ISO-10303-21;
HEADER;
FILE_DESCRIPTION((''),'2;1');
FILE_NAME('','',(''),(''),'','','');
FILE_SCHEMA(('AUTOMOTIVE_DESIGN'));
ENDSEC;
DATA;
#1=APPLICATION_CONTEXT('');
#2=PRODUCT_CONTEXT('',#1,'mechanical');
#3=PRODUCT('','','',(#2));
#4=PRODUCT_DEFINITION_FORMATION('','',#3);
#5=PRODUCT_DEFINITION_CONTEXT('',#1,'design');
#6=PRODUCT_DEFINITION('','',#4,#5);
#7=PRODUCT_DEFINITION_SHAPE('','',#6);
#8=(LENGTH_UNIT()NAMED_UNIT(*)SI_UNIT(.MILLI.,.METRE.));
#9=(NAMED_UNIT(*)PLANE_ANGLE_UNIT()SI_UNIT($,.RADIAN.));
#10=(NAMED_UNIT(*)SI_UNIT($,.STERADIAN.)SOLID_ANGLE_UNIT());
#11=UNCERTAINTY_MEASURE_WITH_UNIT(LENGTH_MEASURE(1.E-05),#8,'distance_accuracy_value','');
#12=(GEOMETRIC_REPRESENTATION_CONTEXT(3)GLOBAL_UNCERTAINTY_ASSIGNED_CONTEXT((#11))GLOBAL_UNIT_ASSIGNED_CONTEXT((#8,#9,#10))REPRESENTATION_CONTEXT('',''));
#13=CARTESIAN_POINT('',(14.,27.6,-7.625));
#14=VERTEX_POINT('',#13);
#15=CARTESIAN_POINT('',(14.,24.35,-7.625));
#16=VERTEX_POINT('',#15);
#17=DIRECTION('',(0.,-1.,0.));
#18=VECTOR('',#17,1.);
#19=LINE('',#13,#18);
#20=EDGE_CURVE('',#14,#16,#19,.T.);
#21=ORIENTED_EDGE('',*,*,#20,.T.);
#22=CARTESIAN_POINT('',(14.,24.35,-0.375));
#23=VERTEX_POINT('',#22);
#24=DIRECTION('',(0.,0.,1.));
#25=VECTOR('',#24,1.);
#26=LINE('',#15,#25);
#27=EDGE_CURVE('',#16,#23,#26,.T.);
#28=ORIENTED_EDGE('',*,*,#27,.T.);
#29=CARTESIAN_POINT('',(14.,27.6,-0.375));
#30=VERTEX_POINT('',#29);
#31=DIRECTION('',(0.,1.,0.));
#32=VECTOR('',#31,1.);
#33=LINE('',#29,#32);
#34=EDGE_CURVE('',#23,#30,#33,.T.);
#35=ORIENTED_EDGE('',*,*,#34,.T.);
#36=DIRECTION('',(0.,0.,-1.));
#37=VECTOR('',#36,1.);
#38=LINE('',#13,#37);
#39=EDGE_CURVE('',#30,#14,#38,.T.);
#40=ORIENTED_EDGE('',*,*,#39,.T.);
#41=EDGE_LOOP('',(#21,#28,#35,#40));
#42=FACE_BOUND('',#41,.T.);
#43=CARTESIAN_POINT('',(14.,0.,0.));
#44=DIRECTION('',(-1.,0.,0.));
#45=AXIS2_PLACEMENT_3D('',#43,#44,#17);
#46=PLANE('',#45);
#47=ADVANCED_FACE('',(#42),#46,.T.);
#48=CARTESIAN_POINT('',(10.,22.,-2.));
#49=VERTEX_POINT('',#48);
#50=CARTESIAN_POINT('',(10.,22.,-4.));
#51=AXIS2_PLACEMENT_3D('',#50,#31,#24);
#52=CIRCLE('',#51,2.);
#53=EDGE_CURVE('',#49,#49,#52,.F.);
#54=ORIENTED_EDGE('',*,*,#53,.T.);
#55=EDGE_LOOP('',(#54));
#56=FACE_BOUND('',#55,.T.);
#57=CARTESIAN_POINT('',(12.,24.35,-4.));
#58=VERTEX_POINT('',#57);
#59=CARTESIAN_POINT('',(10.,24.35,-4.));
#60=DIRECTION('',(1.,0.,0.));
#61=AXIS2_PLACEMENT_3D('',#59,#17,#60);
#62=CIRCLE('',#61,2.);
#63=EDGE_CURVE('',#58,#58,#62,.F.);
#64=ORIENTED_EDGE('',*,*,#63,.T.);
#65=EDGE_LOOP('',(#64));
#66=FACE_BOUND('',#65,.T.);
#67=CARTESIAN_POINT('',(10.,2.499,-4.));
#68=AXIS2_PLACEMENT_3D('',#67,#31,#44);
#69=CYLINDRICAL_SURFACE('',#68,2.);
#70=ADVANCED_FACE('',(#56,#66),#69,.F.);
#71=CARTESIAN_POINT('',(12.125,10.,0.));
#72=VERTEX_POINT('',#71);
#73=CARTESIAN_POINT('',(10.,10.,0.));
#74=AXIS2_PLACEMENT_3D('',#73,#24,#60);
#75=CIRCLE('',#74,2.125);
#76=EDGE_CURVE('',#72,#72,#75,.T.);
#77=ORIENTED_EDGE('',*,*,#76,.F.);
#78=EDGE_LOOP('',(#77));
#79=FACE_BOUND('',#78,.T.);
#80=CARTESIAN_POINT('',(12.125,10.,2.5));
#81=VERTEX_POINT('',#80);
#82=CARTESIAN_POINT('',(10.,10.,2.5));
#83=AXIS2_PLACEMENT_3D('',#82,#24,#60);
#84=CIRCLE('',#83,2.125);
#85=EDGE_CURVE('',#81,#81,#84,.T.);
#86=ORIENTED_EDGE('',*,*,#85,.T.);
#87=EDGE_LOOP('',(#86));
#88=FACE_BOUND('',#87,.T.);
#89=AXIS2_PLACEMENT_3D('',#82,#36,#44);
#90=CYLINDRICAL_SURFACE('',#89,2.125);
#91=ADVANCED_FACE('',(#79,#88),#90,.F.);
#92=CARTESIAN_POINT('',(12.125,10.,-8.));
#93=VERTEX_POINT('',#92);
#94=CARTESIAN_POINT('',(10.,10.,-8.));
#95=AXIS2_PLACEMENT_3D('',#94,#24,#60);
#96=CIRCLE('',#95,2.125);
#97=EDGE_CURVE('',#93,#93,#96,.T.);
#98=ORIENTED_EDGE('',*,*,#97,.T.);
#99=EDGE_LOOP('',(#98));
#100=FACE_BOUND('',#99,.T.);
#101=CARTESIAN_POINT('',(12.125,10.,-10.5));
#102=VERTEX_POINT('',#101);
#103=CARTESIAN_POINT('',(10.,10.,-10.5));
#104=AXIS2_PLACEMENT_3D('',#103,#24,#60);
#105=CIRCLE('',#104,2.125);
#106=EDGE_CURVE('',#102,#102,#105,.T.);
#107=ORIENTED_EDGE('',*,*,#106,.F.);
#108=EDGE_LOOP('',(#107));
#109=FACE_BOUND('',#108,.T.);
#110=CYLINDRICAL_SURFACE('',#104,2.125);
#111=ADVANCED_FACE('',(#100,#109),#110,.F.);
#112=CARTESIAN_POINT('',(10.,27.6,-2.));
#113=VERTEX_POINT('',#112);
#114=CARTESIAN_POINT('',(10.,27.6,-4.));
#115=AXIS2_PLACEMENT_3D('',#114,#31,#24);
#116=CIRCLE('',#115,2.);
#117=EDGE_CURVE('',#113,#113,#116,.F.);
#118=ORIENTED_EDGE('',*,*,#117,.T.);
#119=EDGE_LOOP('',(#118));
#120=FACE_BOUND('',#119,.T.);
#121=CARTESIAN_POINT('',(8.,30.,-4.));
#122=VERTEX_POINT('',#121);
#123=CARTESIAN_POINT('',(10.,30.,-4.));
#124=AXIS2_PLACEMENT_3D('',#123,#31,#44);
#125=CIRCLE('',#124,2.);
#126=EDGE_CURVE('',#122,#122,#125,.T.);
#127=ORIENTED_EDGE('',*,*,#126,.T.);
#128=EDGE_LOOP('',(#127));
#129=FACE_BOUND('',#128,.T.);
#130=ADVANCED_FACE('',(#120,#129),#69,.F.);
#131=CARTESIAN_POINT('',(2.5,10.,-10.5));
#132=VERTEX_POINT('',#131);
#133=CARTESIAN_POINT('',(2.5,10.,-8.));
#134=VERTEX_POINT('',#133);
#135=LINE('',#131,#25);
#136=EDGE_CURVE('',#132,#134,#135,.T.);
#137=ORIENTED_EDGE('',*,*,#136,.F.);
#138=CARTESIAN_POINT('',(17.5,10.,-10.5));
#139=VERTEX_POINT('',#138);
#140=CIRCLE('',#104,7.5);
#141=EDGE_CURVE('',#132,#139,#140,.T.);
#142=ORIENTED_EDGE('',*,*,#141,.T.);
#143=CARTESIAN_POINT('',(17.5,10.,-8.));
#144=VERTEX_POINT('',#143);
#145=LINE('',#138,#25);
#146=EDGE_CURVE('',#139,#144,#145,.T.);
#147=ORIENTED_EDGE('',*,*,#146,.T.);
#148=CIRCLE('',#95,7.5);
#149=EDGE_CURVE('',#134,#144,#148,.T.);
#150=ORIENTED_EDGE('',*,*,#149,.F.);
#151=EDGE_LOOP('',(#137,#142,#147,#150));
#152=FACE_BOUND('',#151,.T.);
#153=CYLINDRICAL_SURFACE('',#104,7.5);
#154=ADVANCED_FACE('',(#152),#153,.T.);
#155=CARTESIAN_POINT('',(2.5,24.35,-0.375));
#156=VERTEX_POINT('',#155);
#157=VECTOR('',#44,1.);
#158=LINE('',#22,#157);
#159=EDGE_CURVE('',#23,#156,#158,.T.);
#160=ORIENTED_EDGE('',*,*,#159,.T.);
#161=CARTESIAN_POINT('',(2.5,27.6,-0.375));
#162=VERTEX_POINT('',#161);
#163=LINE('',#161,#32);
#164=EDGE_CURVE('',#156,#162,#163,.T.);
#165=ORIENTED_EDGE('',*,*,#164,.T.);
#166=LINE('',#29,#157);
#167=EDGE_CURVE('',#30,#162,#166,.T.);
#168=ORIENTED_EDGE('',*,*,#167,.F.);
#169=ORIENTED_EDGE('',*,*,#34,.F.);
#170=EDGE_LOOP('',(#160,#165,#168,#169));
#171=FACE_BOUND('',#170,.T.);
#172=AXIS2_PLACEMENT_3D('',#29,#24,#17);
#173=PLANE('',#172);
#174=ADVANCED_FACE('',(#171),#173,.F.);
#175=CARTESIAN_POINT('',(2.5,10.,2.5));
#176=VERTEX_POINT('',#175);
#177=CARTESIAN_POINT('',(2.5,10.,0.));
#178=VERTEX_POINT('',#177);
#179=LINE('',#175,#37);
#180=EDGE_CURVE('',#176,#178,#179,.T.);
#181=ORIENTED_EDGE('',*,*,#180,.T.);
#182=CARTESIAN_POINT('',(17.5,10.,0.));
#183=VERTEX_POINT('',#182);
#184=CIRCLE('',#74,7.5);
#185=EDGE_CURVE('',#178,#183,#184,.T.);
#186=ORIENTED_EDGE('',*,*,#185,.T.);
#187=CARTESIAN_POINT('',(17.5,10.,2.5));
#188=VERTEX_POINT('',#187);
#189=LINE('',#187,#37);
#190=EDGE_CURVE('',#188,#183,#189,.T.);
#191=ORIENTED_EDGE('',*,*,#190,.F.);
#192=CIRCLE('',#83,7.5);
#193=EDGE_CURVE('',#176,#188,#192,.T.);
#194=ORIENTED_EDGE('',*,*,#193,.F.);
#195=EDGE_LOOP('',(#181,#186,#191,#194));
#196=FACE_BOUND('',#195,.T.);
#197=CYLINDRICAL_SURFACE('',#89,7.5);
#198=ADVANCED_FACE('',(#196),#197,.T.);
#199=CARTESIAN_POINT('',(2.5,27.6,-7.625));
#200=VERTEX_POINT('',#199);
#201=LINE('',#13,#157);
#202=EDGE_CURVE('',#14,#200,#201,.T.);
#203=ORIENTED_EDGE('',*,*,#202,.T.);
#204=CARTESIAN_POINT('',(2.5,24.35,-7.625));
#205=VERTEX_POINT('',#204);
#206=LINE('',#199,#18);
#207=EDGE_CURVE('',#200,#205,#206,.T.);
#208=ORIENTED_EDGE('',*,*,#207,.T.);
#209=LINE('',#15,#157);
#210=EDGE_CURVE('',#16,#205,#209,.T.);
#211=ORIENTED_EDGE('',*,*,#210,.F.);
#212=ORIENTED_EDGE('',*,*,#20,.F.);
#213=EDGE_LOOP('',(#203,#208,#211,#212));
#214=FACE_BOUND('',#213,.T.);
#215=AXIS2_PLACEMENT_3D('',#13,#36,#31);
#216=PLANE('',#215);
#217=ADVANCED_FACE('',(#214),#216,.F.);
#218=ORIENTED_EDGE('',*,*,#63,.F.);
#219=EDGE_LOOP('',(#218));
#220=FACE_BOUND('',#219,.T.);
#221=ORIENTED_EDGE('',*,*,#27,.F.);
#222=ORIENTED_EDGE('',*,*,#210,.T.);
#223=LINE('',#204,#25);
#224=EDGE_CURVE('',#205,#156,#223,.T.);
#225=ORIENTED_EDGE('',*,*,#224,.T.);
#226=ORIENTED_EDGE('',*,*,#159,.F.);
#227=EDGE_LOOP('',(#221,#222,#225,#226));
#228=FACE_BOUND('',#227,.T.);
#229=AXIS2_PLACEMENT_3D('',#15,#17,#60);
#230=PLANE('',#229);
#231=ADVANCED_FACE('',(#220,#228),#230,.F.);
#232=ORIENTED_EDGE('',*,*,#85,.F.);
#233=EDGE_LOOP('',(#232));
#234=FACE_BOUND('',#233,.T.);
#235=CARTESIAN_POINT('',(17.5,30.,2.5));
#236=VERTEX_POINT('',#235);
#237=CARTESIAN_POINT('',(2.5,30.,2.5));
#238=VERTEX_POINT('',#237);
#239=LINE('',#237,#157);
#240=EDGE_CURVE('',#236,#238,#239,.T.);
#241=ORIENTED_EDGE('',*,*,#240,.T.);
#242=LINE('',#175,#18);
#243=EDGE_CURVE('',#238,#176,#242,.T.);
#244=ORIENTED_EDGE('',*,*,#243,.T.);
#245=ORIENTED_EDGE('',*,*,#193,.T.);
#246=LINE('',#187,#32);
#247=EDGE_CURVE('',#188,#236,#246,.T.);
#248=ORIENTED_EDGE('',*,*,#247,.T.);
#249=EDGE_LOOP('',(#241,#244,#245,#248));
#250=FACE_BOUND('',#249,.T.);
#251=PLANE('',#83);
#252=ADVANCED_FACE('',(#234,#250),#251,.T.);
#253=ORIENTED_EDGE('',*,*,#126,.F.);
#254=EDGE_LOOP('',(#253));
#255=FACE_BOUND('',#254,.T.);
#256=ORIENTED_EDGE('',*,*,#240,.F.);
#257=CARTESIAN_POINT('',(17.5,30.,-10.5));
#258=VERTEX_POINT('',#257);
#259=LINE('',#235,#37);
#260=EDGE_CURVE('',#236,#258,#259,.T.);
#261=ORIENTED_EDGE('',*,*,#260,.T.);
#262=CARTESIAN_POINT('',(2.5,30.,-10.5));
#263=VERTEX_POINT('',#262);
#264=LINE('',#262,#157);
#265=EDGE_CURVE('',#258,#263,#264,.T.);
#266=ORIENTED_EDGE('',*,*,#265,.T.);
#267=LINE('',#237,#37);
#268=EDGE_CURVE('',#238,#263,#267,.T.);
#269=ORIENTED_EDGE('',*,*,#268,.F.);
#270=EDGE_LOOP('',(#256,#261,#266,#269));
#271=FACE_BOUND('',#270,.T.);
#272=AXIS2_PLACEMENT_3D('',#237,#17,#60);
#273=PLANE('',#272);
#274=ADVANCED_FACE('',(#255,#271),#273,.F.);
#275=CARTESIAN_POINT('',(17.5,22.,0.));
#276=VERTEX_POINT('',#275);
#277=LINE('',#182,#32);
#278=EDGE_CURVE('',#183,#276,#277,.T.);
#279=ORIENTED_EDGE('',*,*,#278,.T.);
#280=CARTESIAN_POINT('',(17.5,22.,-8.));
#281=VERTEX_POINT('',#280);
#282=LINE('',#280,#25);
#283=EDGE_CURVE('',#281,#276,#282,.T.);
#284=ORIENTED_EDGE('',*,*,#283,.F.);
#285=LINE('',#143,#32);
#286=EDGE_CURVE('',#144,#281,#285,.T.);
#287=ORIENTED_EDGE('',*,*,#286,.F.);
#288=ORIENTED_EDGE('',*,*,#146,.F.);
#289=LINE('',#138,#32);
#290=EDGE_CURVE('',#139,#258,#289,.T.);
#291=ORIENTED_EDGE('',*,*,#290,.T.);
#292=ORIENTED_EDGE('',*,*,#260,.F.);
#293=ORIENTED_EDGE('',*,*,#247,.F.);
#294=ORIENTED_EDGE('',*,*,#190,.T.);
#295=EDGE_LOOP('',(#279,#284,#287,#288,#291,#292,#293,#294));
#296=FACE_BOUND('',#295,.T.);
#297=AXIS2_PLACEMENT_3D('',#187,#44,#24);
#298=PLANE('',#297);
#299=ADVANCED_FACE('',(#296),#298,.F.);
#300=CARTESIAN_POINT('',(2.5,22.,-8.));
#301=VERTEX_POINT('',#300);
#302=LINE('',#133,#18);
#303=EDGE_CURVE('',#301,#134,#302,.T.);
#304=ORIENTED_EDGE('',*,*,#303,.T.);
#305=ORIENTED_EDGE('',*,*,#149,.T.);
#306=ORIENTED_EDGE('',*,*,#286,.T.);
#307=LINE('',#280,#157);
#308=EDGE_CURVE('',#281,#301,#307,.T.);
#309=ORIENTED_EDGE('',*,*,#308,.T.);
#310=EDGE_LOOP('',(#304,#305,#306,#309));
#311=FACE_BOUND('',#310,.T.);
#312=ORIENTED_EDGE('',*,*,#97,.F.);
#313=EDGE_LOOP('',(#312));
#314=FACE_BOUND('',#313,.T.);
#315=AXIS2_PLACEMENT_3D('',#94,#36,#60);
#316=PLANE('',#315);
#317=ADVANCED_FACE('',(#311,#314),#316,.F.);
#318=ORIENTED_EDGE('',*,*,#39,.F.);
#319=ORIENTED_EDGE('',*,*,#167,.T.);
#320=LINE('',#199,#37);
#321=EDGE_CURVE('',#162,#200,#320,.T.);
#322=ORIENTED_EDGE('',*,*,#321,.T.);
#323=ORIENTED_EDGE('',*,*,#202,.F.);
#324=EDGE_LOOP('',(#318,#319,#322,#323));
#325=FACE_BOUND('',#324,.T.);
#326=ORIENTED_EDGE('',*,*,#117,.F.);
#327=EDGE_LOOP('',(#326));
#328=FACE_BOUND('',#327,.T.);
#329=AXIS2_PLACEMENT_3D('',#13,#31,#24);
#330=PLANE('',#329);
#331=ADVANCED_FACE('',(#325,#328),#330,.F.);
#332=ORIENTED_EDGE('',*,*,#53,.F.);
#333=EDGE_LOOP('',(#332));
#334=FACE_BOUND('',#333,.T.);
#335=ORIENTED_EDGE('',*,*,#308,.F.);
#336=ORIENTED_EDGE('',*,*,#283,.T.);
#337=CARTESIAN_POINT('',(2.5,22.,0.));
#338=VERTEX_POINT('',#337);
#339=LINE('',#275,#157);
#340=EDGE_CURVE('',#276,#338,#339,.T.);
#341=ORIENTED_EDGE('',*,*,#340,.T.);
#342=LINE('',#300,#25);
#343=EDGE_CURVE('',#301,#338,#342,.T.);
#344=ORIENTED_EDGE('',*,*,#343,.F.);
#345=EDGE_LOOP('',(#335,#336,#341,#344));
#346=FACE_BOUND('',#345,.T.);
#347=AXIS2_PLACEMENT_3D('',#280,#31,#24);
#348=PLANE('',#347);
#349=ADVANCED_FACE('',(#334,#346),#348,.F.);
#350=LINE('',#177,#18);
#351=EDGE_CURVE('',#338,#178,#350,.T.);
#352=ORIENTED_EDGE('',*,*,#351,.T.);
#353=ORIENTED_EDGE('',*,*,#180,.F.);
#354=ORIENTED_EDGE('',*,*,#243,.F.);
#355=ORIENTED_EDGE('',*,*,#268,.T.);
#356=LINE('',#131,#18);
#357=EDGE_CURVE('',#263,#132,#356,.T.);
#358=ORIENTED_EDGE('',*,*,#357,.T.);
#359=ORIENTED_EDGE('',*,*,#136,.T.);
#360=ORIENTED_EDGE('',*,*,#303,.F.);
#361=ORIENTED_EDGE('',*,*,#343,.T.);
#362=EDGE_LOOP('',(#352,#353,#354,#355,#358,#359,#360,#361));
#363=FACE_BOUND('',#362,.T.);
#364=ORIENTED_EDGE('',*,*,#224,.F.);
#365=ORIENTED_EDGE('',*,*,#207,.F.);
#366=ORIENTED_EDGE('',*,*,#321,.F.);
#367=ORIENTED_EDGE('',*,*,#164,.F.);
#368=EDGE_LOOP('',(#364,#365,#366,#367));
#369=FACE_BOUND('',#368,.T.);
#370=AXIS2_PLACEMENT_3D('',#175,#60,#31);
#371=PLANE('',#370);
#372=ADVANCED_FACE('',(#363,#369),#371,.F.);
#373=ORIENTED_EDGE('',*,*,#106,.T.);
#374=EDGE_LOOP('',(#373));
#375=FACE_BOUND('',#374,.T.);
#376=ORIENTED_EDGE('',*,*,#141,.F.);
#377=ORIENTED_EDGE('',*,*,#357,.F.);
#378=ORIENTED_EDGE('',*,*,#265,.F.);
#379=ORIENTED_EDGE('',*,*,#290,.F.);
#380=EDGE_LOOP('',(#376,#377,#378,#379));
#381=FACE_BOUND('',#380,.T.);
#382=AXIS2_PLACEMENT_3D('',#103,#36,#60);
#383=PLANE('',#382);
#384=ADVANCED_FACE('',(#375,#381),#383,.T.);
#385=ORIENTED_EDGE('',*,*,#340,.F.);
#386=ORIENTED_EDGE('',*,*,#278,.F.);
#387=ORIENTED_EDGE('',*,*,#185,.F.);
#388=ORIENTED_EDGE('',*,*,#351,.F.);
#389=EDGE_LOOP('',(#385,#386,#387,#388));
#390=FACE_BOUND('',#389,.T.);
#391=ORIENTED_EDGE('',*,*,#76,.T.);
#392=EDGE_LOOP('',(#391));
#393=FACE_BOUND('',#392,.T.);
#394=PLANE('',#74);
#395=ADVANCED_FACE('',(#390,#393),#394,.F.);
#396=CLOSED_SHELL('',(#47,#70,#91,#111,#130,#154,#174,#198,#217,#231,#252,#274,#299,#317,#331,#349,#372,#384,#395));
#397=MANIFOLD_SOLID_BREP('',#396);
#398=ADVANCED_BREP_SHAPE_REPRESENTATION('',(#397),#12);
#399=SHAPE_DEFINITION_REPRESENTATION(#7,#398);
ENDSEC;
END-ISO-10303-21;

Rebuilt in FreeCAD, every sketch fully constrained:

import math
import FreeCAD as App
import Part
import Sketcher
Q = App.Units.Quantity

doc = App.newDocument("Part")
body = doc.addObject("PartDesign::Body", "Body")

sketch1 = body.newObject("Sketcher::SketchObject", "Sketch")
sketch1.AttachmentSupport = (doc.getObject("XY_Plane"), [""])
sketch1.MapMode = "FlatFace"
sketch1.addGeometry([
    Part.LineSegment(App.Vector(2.5, 30, 0), App.Vector(2.5, 10, 0)),
    Part.ArcOfCircle(Part.Circle(App.Vector(10, 10, 0), App.Vector(0, 0, 1), 7.5), math.radians(180), math.radians(360)),
    Part.LineSegment(App.Vector(17.5, 10, 0), App.Vector(17.5, 30, 0)),
    Part.LineSegment(App.Vector(17.5, 30, 0), App.Vector(2.5, 30, 0)),
    Part.Circle(App.Vector(10, 10, 0), App.Vector(0, 0, 1), 2.125),
], False)
sketch1.addConstraint([
    Sketcher.Constraint("Tangent", 0, 2, 1, 1),
    Sketcher.Constraint("Tangent", 1, 2, 2, 1),
    Sketcher.Constraint("Coincident", 2, 2, 3, 1),
    Sketcher.Constraint("Coincident", 3, 2, 0, 1),
    Sketcher.Constraint("Vertical", 0),
    Sketcher.Constraint("Vertical", 2),
    Sketcher.Constraint("Horizontal", 3),
    Sketcher.Constraint("Coincident", 4, 3, 1, 3),
    Sketcher.Constraint("Radius", 1, Q("7.5 mm")),
    Sketcher.Constraint("Diameter", 4, Q("4.25 mm")),
    Sketcher.Constraint("DistanceY", 0, 2, 0, 1, Q("20 mm")),
    Sketcher.Constraint("DistanceX", -1, 1, 1, 3, Q("10 mm")),
    Sketcher.Constraint("DistanceY", -1, 1, 1, 3, Q("10 mm")),
])
pad1 = body.newObject("PartDesign::Pad", "Pad")
pad1.Profile = sketch1
pad1.Length = 2.5

sketch2 = body.newObject("Sketcher::SketchObject", "Sketch001")
sketch2.AttachmentSupport = (doc.getObject("XY_Plane"), [""])
sketch2.MapMode = "FlatFace"
sketch2.addGeometry([
    Part.LineSegment(App.Vector(17.5, 30, 0), App.Vector(17.5, 22, 0)),
    Part.LineSegment(App.Vector(17.5, 22, 0), App.Vector(2.5, 22, 0)),
    Part.LineSegment(App.Vector(2.5, 22, 0), App.Vector(2.5, 30, 0)),
    Part.LineSegment(App.Vector(2.5, 30, 0), App.Vector(17.5, 30, 0)),
], False)
sketch2.addConstraint([
    Sketcher.Constraint("Coincident", 0, 2, 1, 1),
    Sketcher.Constraint("Coincident", 1, 2, 2, 1),
    Sketcher.Constraint("Coincident", 2, 2, 3, 1),
    Sketcher.Constraint("Coincident", 3, 2, 0, 1),
    Sketcher.Constraint("Vertical", 0),
    Sketcher.Constraint("Horizontal", 1),
    Sketcher.Constraint("Vertical", 2),
    Sketcher.Constraint("Horizontal", 3),
    Sketcher.Constraint("DistanceX", 1, 2, 1, 1, Q("15 mm")),
    Sketcher.Constraint("DistanceY", 0, 2, 0, 1, Q("8 mm")),
    Sketcher.Constraint("DistanceY", -1, 1, 0, 2, Q("22 mm")),
    Sketcher.Constraint("DistanceX", -1, 1, 0, 2, Q("17.5 mm")),
])
pad2 = body.newObject("PartDesign::Pad", "Pad001")
pad2.Profile = sketch2
pad2.Length = 8
pad2.Reversed = True
doc.recompute()

datumplane = body.newObject("PartDesign::Plane", "DatumPlane")
datumplane.AttachmentSupport = (doc.getObject("XY_Plane"), [""])
datumplane.MapMode = "FlatFace"
datumplane.AttachmentOffset = App.Placement(App.Vector(0, 0, -4), App.Rotation())
mirrored = body.newObject("PartDesign::Mirrored", "Mirrored")
mirrored.Originals = [pad1]
mirrored.MirrorPlane = (datumplane, [""])
body.Tip = mirrored

sketch3 = body.newObject("Sketcher::SketchObject", "Sketch002")
sketch3.AttachmentSupport = (doc.getObject("XZ_Plane"), [""])
sketch3.MapMode = "FlatFace"
sketch3.AttachmentOffset = App.Placement(App.Vector(0, 0, -30), App.Rotation())
sketch3.addGeometry(Part.Circle(App.Vector(10, -4, 0), App.Vector(0, 0, 1), 2), False)
sketch3.addConstraint([
    Sketcher.Constraint("Diameter", 0, Q("4 mm")),
    Sketcher.Constraint("DistanceX", -1, 1, 0, 3, Q("10 mm")),
    Sketcher.Constraint("DistanceY", 0, 3, -1, 1, Q("4 mm")),
])
pocket1 = body.newObject("PartDesign::Pocket", "Pocket")
pocket1.Profile = sketch3
pocket1.Type = "UpToFirst"
pocket1.Reversed = True

sketch4 = body.newObject("Sketcher::SketchObject", "Sketch003")
sketch4.AttachmentSupport = (doc.getObject("YZ_Plane"), [""])
sketch4.MapMode = "FlatFace"
sketch4.AttachmentOffset = App.Placement(App.Vector(0, 0, 2.5), App.Rotation())
sketch4.addGeometry([
    Part.LineSegment(App.Vector(27.6, -7.625, 0), App.Vector(24.35, -7.625, 0)),
    Part.LineSegment(App.Vector(24.35, -7.625, 0), App.Vector(24.35, -0.375, 0)),
    Part.LineSegment(App.Vector(24.35, -0.375, 0), App.Vector(27.6, -0.375, 0)),
    Part.LineSegment(App.Vector(27.6, -0.375, 0), App.Vector(27.6, -7.625, 0)),
], False)
sketch4.addConstraint([
    Sketcher.Constraint("Coincident", 0, 2, 1, 1),
    Sketcher.Constraint("Coincident", 1, 2, 2, 1),
    Sketcher.Constraint("Coincident", 2, 2, 3, 1),
    Sketcher.Constraint("Coincident", 3, 2, 0, 1),
    Sketcher.Constraint("Horizontal", 0),
    Sketcher.Constraint("Vertical", 1),
    Sketcher.Constraint("Horizontal", 2),
    Sketcher.Constraint("Vertical", 3),
    Sketcher.Constraint("DistanceX", 0, 2, 0, 1, Q("3.25 mm")),
    Sketcher.Constraint("DistanceY", 1, 1, 1, 2, Q("7.25 mm")),
    Sketcher.Constraint("DistanceX", -1, 1, 2, 2, Q("27.6 mm")),
    Sketcher.Constraint("DistanceY", 0, 2, -1, 1, Q("7.625 mm")),
])
pocket2 = body.newObject("PartDesign::Pocket", "Pocket001")
pocket2.Profile = sketch4
pocket2.Length = 11.5
pocket2.Reversed = True

doc.recompute()
